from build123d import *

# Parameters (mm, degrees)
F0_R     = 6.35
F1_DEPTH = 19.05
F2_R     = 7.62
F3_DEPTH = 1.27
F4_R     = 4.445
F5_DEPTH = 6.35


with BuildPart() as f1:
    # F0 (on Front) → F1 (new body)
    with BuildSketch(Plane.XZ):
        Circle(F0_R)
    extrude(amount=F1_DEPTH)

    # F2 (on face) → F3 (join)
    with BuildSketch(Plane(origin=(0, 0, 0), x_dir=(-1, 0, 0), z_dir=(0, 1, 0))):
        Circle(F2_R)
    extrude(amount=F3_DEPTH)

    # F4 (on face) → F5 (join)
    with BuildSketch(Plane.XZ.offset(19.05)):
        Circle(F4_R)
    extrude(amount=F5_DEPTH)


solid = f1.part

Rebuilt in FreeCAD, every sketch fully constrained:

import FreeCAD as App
import Part
import Sketcher
Q = App.Units.Quantity

doc = App.newDocument("Part")
body = doc.addObject("PartDesign::Body", "Body")

sketch1 = body.newObject("Sketcher::SketchObject", "Sketch")
sketch1.AttachmentSupport = (doc.getObject("XZ_Plane"), [""])
sketch1.MapMode = "FlatFace"
sketch1.addGeometry(Part.Circle(App.Vector(0, 0, 0), App.Vector(0, 0, 1), 6.35), False)
sketch1.addConstraint(Sketcher.Constraint("Coincident", 0, 3, -1, 1))
sketch1.addConstraint(Sketcher.Constraint("Diameter", 0, Q("0.5 in")))
pad1 = body.newObject("PartDesign::Pad", "Pad")
pad1.Profile = sketch1
pad1.Length = Q("0.75 in")

sketch2 = body.newObject("Sketcher::SketchObject", "Sketch001")
sketch2.AttachmentSupport = (doc.getObject("XZ_Plane"), [""])
sketch2.MapMode = "FlatFace"
sketch2.addGeometry(Part.Circle(App.Vector(0, 0, 0), App.Vector(0, 0, 1), 7.62), False)
sketch2.addConstraint(Sketcher.Constraint("Coincident", 0, 3, -1, 1))
sketch2.addConstraint(Sketcher.Constraint("Diameter", 0, Q("0.6 in")))
pad2 = body.newObject("PartDesign::Pad", "Pad001")
pad2.Profile = sketch2
pad2.Length = Q("0.05 in")
pad2.Reversed = True

sketch3 = body.newObject("Sketcher::SketchObject", "Sketch002")
sketch3.AttachmentSupport = (doc.getObject("XZ_Plane"), [""])
sketch3.MapMode = "FlatFace"
sketch3.AttachmentOffset = App.Placement(App.Vector(0, 0, 0.75 * 25.4), App.Rotation())
sketch3.addGeometry(Part.Circle(App.Vector(0, 0, 0), App.Vector(0, 0, 1), 4.445), False)
sketch3.addConstraint(Sketcher.Constraint("Coincident", 0, 3, -1, 1))
sketch3.addConstraint(Sketcher.Constraint("Diameter", 0, Q("0.35 in")))
pad3 = body.newObject("PartDesign::Pad", "Pad002")
pad3.Profile = sketch3
pad3.Length = Q("0.25 in")

doc.recompute()
